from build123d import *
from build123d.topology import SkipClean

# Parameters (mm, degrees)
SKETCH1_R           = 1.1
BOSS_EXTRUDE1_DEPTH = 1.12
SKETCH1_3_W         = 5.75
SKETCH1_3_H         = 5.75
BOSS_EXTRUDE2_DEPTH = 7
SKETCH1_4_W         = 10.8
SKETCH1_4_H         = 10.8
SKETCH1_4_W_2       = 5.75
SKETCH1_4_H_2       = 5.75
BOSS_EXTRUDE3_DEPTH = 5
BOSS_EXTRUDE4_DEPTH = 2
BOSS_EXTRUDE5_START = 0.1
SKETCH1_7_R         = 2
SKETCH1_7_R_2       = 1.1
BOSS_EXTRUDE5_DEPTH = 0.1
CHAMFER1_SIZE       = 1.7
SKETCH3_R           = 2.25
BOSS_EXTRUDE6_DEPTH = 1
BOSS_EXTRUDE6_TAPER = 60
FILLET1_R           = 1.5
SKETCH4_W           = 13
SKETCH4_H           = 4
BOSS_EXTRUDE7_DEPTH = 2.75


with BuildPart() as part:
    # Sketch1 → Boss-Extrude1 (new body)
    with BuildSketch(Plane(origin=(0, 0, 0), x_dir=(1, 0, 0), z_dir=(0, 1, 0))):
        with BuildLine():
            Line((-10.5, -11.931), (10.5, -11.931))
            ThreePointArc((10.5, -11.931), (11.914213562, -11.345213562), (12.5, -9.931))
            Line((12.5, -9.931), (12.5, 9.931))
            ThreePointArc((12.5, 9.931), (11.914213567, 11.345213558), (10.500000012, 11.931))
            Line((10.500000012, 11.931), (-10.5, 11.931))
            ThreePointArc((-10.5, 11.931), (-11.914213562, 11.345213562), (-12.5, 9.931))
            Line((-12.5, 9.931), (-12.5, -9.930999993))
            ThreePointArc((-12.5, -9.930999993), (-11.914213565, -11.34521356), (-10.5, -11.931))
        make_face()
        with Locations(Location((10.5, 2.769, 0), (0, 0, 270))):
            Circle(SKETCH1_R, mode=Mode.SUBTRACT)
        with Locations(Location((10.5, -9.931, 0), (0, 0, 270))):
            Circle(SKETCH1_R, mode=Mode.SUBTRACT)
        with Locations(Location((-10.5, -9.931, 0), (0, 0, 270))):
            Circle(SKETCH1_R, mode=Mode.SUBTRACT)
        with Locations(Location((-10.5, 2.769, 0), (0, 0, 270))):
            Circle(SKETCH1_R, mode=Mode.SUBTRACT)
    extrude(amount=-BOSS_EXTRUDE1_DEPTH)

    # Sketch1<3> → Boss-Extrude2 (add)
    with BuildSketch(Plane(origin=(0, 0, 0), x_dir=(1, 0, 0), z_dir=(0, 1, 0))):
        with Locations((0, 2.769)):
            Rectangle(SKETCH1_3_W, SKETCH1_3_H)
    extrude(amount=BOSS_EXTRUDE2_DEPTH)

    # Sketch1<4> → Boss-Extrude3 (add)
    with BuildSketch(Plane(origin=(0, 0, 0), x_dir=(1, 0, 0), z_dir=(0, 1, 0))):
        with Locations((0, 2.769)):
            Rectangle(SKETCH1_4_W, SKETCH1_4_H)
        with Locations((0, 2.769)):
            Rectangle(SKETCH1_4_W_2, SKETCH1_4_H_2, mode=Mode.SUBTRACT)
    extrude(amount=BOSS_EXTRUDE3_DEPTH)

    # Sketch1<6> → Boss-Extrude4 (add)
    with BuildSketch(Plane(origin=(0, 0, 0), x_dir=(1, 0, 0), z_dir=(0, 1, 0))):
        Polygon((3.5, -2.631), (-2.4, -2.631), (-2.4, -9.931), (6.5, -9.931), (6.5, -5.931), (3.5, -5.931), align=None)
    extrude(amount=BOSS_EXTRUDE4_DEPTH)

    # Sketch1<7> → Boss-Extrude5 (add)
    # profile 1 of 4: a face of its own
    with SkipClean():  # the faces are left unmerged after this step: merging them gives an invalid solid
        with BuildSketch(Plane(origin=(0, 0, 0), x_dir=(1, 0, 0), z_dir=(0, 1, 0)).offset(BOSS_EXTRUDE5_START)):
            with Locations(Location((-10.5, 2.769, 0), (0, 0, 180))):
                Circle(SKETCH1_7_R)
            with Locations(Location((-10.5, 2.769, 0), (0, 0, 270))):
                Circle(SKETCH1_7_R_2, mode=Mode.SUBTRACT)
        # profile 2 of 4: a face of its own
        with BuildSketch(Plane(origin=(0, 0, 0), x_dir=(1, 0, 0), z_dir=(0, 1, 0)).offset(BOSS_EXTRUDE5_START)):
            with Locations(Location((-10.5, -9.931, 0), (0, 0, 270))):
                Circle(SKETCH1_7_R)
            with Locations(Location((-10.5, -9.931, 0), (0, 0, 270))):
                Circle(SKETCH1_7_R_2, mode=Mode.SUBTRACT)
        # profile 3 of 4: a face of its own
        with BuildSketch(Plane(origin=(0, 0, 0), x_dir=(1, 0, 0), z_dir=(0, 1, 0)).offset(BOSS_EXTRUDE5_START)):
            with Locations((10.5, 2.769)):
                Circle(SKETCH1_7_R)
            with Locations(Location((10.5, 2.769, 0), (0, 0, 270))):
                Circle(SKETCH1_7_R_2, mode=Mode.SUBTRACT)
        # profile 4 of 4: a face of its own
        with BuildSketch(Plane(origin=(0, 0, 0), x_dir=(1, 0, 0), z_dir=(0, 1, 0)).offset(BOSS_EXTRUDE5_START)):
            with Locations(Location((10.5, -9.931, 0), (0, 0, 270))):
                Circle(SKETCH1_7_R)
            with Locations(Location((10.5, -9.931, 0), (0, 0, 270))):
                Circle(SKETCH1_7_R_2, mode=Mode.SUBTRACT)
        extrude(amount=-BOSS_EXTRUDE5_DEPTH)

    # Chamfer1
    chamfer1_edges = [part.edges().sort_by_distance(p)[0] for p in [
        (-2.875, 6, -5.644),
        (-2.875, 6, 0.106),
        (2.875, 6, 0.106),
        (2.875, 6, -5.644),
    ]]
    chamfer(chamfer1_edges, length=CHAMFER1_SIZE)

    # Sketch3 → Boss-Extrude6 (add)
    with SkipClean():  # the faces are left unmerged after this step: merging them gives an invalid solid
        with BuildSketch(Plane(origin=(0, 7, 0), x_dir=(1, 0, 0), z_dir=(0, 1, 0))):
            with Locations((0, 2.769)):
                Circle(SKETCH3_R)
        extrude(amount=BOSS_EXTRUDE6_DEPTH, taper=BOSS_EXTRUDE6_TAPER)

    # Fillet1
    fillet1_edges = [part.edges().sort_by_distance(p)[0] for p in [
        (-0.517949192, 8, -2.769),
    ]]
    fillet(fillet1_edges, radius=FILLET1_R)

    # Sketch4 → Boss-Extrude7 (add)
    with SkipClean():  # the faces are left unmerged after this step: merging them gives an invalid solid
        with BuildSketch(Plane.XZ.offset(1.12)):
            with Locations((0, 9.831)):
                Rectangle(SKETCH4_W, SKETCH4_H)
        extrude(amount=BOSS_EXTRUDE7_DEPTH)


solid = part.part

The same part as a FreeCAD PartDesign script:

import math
import FreeCAD as App
import Part
import Sketcher


def edges_at(feature, points):
    """Names of the edges that pass closest to the given points."""
    edges = feature.Shape.Edges
    near = lambda p: min(range(len(edges)), key=lambda i: edges[i].distToShape(Part.Vertex(*p))[0])
    return sorted({f"Edge{near(p) + 1}" for p in points})

doc = App.newDocument("Part")
body = doc.addObject("PartDesign::Body", "Body")

# Sketch on XZ plane
sketch1 = doc.addObject("Sketcher::SketchObject", "Sketch")
body.addObject(sketch1)
sketch1.AttachmentSupport = (doc.XZ_Plane, [""])
sketch1.MapMode = "FlatFace"
sketch1.addGeometry(Part.LineSegment(App.Vector(-10.5, 11.9, 0), App.Vector(10.5, 11.9, 0)), False)
sketch1.addGeometry(Part.ArcOfCircle(Part.Circle(App.Vector(10.5, 9.9, 0), App.Vector(0, 0, 1), 2), math.radians(0), math.radians(90)), False)
sketch1.addGeometry(Part.LineSegment(App.Vector(12.5, 9.9, 0), App.Vector(12.5, -9.9, 0)), False)
sketch1.addGeometry(Part.ArcOfCircle(Part.Circle(App.Vector(10.5, -9.9, 0), App.Vector(0, 0, 1), 2), math.radians(-90), math.radians(0)), False)
sketch1.addGeometry(Part.LineSegment(App.Vector(10.5, -11.9, 0), App.Vector(-10.5, -11.9, 0)), False)
sketch1.addGeometry(Part.ArcOfCircle(Part.Circle(App.Vector(-10.5, -9.9, 0), App.Vector(0, 0, 1), 2), math.radians(-180), math.radians(-90)), False)
sketch1.addGeometry(Part.LineSegment(App.Vector(-12.5, -9.9, 0), App.Vector(-12.5, 9.9, 0)), False)
sketch1.addGeometry(Part.ArcOfCircle(Part.Circle(App.Vector(-10.5, 9.9, 0), App.Vector(0, 0, 1), 2), math.radians(90), math.radians(180)), False)
sketch1.addGeometry(Part.Circle(App.Vector(-10.5, 9.9, 0), App.Vector(0, 0, 1), 1.1), False)
sketch1.addGeometry(Part.Circle(App.Vector(10.5, 9.9, 0), App.Vector(0, 0, 1), 1.1), False)
sketch1.addGeometry(Part.Circle(App.Vector(-10.5, -2.8, 0), App.Vector(0, 0, 1), 1.1), False)
sketch1.addGeometry(Part.Circle(App.Vector(10.5, -2.8, 0), App.Vector(0, 0, 1), 1.1), False)
sketch1.addConstraint(Sketcher.Constraint("Tangent", 0, 2, 1, 2))
sketch1.addConstraint(Sketcher.Constraint("Tangent", 1, 1, 2, 1))
sketch1.addConstraint(Sketcher.Constraint("Tangent", 2, 2, 3, 2))
sketch1.addConstraint(Sketcher.Constraint("Tangent", 3, 1, 4, 1))
sketch1.addConstraint(Sketcher.Constraint("Tangent", 4, 2, 5, 2))
sketch1.addConstraint(Sketcher.Constraint("Tangent", 5, 1, 6, 1))
sketch1.addConstraint(Sketcher.Constraint("Tangent", 6, 2, 7, 2))
sketch1.addConstraint(Sketcher.Constraint("Tangent", 7, 1, 0, 1))
sketch1.addConstraint(Sketcher.Constraint("Horizontal", 0))
sketch1.addConstraint(Sketcher.Constraint("Vertical", 2))
sketch1.addConstraint(Sketcher.Constraint("Horizontal", 4))
sketch1.addConstraint(Sketcher.Constraint("Vertical", 6))
sketch1.addConstraint(Sketcher.Constraint("Coincident", 8, 3, 7, 3))
sketch1.addConstraint(Sketcher.Constraint("Coincident", 9, 3, 1, 3))
sketch1.addConstraint(Sketcher.Constraint("Equal", 1, 3))
sketch1.addConstraint(Sketcher.Constraint("Equal", 3, 5))
sketch1.addConstraint(Sketcher.Constraint("Equal", 5, 7))
sketch1.addConstraint(Sketcher.Constraint("Equal", 8, 9))
sketch1.addConstraint(Sketcher.Constraint("Equal", 9, 10))
sketch1.addConstraint(Sketcher.Constraint("Equal", 10, 11))
sketch1.addConstraint(Sketcher.Constraint("Symmetric", 1, 3, 5, 3, -1, 1))
sketch1.addConstraint(Sketcher.Constraint("Symmetric", 10, 3, 11, 3, -2))
sketch1.addConstraint(Sketcher.Constraint("Vertical", 8, 3, 10, 3))
sketch1.addConstraint(Sketcher.Constraint("Radius", 1, 2.0))
sketch1.addConstraint(Sketcher.Constraint("Diameter", 8, 2.2))
sketch1.addConstraint(Sketcher.Constraint("DistanceX", 0, 1, 0, 2, 21.0))
sketch1.addConstraint(Sketcher.Constraint("DistanceY", 10, 3, 7, 3, 12.7))
sketch1.addConstraint(Sketcher.Constraint("DistanceY", 2, 2, 2, 1, 19.862))
pad1 = doc.addObject("PartDesign::Pad", "Pad")
body.addObject(pad1)
pad1.Profile = sketch1
pad1.Length = 1.12

# Sketch on XZ plane
sketch2 = doc.addObject("Sketcher::SketchObject", "Sketch001")
body.addObject(sketch2)
sketch2.AttachmentSupport = (doc.XZ_Plane, [""])
sketch2.MapMode = "FlatFace"
sketch2.addGeometry(Part.LineSegment(App.Vector(-3, -6, 0), App.Vector(-3, 0, 0)), False)
sketch2.addGeometry(Part.LineSegment(App.Vector(-3, 0, 0), App.Vector(3, 0, 0)), False)
sketch2.addGeometry(Part.LineSegment(App.Vector(3, 0, 0), App.Vector(3, -6, 0)), False)
sketch2.addGeometry(Part.LineSegment(App.Vector(3, -6, 0), App.Vector(-3, -6, 0)), False)
sketch2.addConstraint(Sketcher.Constraint("Coincident", 0, 2, 1, 1))
sketch2.addConstraint(Sketcher.Constraint("Coincident", 1, 2, 2, 1))
sketch2.addConstraint(Sketcher.Constraint("Coincident", 2, 2, 3, 1))
sketch2.addConstraint(Sketcher.Constraint("Coincident", 3, 2, 0, 1))
sketch2.addConstraint(Sketcher.Constraint("Vertical", 0))
sketch2.addConstraint(Sketcher.Constraint("Horizontal", 1))
sketch2.addConstraint(Sketcher.Constraint("Vertical", 2))
sketch2.addConstraint(Sketcher.Constraint("Horizontal", 3))
sketch2.addConstraint(Sketcher.Constraint("Equal", 3, 0))
sketch2.addConstraint(Sketcher.Constraint("DistanceX", 1, 1, 1, 2, 5.75))
sketch2.addConstraint(Sketcher.Constraint("DistanceX", 0, 2, -1, 1, 2.875))
sketch2.addConstraint(Sketcher.Constraint("DistanceY", -1, 1, 0, 2, 0.106))
pad2 = doc.addObject("PartDesign::Pad", "Pad001")
body.addObject(pad2)
pad2.Profile = sketch2
pad2.Length = 7
pad2.Reversed = True

# Sketch on XZ plane
sketch3 = doc.addObject("Sketcher::SketchObject", "Sketch002")
body.addObject(sketch3)
sketch3.AttachmentSupport = (doc.XZ_Plane, [""])
sketch3.MapMode = "FlatFace"
sketch3.addGeometry(Part.LineSegment(App.Vector(-5, -8, 0), App.Vector(-5, 3, 0)), False)
sketch3.addGeometry(Part.LineSegment(App.Vector(-5, 3, 0), App.Vector(5, 3, 0)), False)
sketch3.addGeometry(Part.LineSegment(App.Vector(5, 3, 0), App.Vector(5, -8, 0)), False)
sketch3.addGeometry(Part.LineSegment(App.Vector(5, -8, 0), App.Vector(-5, -8, 0)), False)
sketch3.addGeometry(Part.LineSegment(App.Vector(3, 0, 0), App.Vector(-3, 0, 0)), False)
sketch3.addGeometry(Part.LineSegment(App.Vector(-3, 0, 0), App.Vector(-3, -6, 0)), False)
sketch3.addGeometry(Part.LineSegment(App.Vector(-3, -6, 0), App.Vector(3, -6, 0)), False)
sketch3.addGeometry(Part.LineSegment(App.Vector(3, -6, 0), App.Vector(3, 0, 0)), False)
sketch3.addConstraint(Sketcher.Constraint("Coincident", 0, 2, 1, 1))
sketch3.addConstraint(Sketcher.Constraint("Coincident", 1, 2, 2, 1))
sketch3.addConstraint(Sketcher.Constraint("Coincident", 2, 2, 3, 1))
sketch3.addConstraint(Sketcher.Constraint("Coincident", 3, 2, 0, 1))
sketch3.addConstraint(Sketcher.Constraint("Coincident", 4, 2, 5, 1))
sketch3.addConstraint(Sketcher.Constraint("Coincident", 5, 2, 6, 1))
sketch3.addConstraint(Sketcher.Constraint("Coincident", 6, 2, 7, 1))
sketch3.addConstraint(Sketcher.Constraint("Coincident", 7, 2, 4, 1))
sketch3.addConstraint(Sketcher.Constraint("Vertical", 0))
sketch3.addConstraint(Sketcher.Constraint("Horizontal", 1))
sketch3.addConstraint(Sketcher.Constraint("Vertical", 2))
sketch3.addConstraint(Sketcher.Constraint("Horizontal", 3))
sketch3.addConstraint(Sketcher.Constraint("Horizontal", 4))
sketch3.addConstraint(Sketcher.Constraint("Vertical", 5))
sketch3.addConstraint(Sketcher.Constraint("Horizontal", 6))
sketch3.addConstraint(Sketcher.Constraint("Vertical", 7))
sketch3.addConstraint(Sketcher.Constraint("Equal", 3, 0))
sketch3.addConstraint(Sketcher.Constraint("Equal", 6, 5))
sketch3.addConstraint(Sketcher.Constraint("DistanceX", 1, 1, 1, 2, 10.8))
sketch3.addConstraint(Sketcher.Constraint("DistanceX", 4, 2, 4, 1, 5.75))
sketch3.addConstraint(Sketcher.Constraint("DistanceX", 0, 2, -1, 1, 5.4))
sketch3.addConstraint(Sketcher.Constraint("DistanceY", -1, 1, 0, 2, 2.631))
sketch3.addConstraint(Sketcher.Constraint("DistanceX", 4, 2, -1, 1, 2.875))
sketch3.addConstraint(Sketcher.Constraint("DistanceY", -1, 1, 4, 2, 0.106))
pad3 = doc.addObject("PartDesign::Pad", "Pad002")
body.addObject(pad3)
pad3.Profile = sketch3
pad3.Length = 5
pad3.Reversed = True

# Sketch on XZ plane
sketch4 = doc.addObject("Sketcher::SketchObject", "Sketch003")
body.addObject(sketch4)
sketch4.AttachmentSupport = (doc.XZ_Plane, [""])
sketch4.MapMode = "FlatFace"
sketch4.addGeometry(Part.LineSegment(App.Vector(3.5, 2.6, 0), App.Vector(-2.4, 2.6, 0)), False)
sketch4.addGeometry(Part.LineSegment(App.Vector(-2.4, 2.6, 0), App.Vector(-2.4, 9.9, 0)), False)
sketch4.addGeometry(Part.LineSegment(App.Vector(-2.4, 9.9, 0), App.Vector(6.5, 9.9, 0)), False)
sketch4.addGeometry(Part.LineSegment(App.Vector(6.5, 9.9, 0), App.Vector(6.5, 5.9, 0)), False)
sketch4.addGeometry(Part.LineSegment(App.Vector(6.5, 5.9, 0), App.Vector(3.5, 5.9, 0)), False)
sketch4.addGeometry(Part.LineSegment(App.Vector(3.5, 5.9, 0), App.Vector(3.5, 2.6, 0)), False)
sketch4.addConstraint(Sketcher.Constraint("Coincident", 0, 2, 1, 1))
sketch4.addConstraint(Sketcher.Constraint("Coincident", 1, 2, 2, 1))
sketch4.addConstraint(Sketcher.Constraint("Coincident", 2, 2, 3, 1))
sketch4.addConstraint(Sketcher.Constraint("Coincident", 3, 2, 4, 1))
sketch4.addConstraint(Sketcher.Constraint("Coincident", 4, 2, 5, 1))
sketch4.addConstraint(Sketcher.Constraint("Coincident", 5, 2, 0, 1))
sketch4.addConstraint(Sketcher.Constraint("Horizontal", 0))
sketch4.addConstraint(Sketcher.Constraint("Vertical", 1))
sketch4.addConstraint(Sketcher.Constraint("Horizontal", 2))
sketch4.addConstraint(Sketcher.Constraint("Vertical", 3))
sketch4.addConstraint(Sketcher.Constraint("Horizontal", 4))
sketch4.addConstraint(Sketcher.Constraint("Vertical", 5))
sketch4.addConstraint(Sketcher.Constraint("DistanceX", 4, 2, 4, 1, 3.0))
sketch4.addConstraint(Sketcher.Constraint("DistanceY", 3, 2, 3, 1, 4.0))
sketch4.addConstraint(Sketcher.Constraint("DistanceX", 0, 2, 0, 1, 5.9))
sketch4.addConstraint(Sketcher.Constraint("DistanceY", 1, 1, 1, 2, 7.3))
sketch4.addConstraint(Sketcher.Constraint("DistanceX", 0, 2, -1, 1, 2.4))
sketch4.addConstraint(Sketcher.Constraint("DistanceY", -1, 1, 0, 2, 2.631))
pad4 = doc.addObject("PartDesign::Pad", "Pad003")
body.addObject(pad4)
pad4.Profile = sketch4
pad4.Length = 2
pad4.Reversed = True

# Sketch on XZ plane
sketch5 = doc.addObject("Sketcher::SketchObject", "Sketch004")
body.addObject(sketch5)
sketch5.AttachmentSupport = (doc.XZ_Plane, [""])
sketch5.MapMode = "FlatFace"
sketch5.AttachmentOffset = App.Placement(App.Vector(0, 0, -0.1), App.Rotation())
sketch5.addGeometry(Part.Circle(App.Vector(-10.5, -2.8, 0), App.Vector(0, 0, 1), 2), False)
sketch5.addGeometry(Part.Circle(App.Vector(-10.5, -2.8, 0), App.Vector(0, 0, 1), 1.1), False)
sketch5.addGeometry(Part.Circle(App.Vector(-10.5, 9.9, 0), App.Vector(0, 0, 1), 2), False)
sketch5.addGeometry(Part.Circle(App.Vector(-10.5, 9.9, 0), App.Vector(0, 0, 1), 1.1), False)
sketch5.addGeometry(Part.Circle(App.Vector(10.5, -2.8, 0), App.Vector(0, 0, 1), 2), False)
sketch5.addGeometry(Part.Circle(App.Vector(10.5, -2.8, 0), App.Vector(0, 0, 1), 1.1), False)
sketch5.addGeometry(Part.Circle(App.Vector(10.5, 9.9, 0), App.Vector(0, 0, 1), 2), False)
sketch5.addGeometry(Part.Circle(App.Vector(10.5, 9.9, 0), App.Vector(0, 0, 1), 1.1), False)
sketch5.addConstraint(Sketcher.Constraint("Coincident", 1, 3, 0, 3))
sketch5.addConstraint(Sketcher.Constraint("Coincident", 3, 3, 2, 3))
sketch5.addConstraint(Sketcher.Constraint("Coincident", 5, 3, 4, 3))
sketch5.addConstraint(Sketcher.Constraint("Coincident", 7, 3, 6, 3))
sketch5.addConstraint(Sketcher.Constraint("Equal", 0, 2))
sketch5.addConstraint(Sketcher.Constraint("Equal", 1, 3))
sketch5.addConstraint(Sketcher.Constraint("Equal", 2, 4))
sketch5.addConstraint(Sketcher.Constraint("Equal", 3, 5))
sketch5.addConstraint(Sketcher.Constraint("Equal", 4, 6))
sketch5.addConstraint(Sketcher.Constraint("Equal", 5, 7))
sketch5.addConstraint(Sketcher.Constraint("Symmetric", 0, 3, 4, 3, -2))
sketch5.addConstraint(Sketcher.Constraint("Symmetric", 2, 3, 6, 3, -2))
sketch5.addConstraint(Sketcher.Constraint("Vertical", 1, 3, 2, 3))
sketch5.addConstraint(Sketcher.Constraint("Diameter", 0, 4.0))
sketch5.addConstraint(Sketcher.Constraint("Diameter", 1, 2.2))
sketch5.addConstraint(Sketcher.Constraint("DistanceX", 0, 3, 4, 3, 21.0))
sketch5.addConstraint(Sketcher.Constraint("DistanceY", 0, 3, 2, 3, 12.7))
sketch5.addConstraint(Sketcher.Constraint("DistanceY", 0, 3, -1, 1, 2.769))
pad5 = doc.addObject("PartDesign::Pad", "Pad004")
body.addObject(pad5)
pad5.Profile = sketch5
pad5.Length = 0.1
doc.recompute()

chamfer = doc.addObject("PartDesign::Chamfer", "Chamfer")
body.addObject(chamfer)
chamfer.Base = (pad5, edges_at(pad5, [
    (-2.875, 6, -5.644),
    (-2.875, 6, 0.106),
    (2.875, 6, 0.106),
    (2.875, 6, -5.644),
]))
chamfer.Size = 1.7

# Sketch on XZ plane
sketch6 = doc.addObject("Sketcher::SketchObject", "Sketch005")
body.addObject(sketch6)
sketch6.AttachmentSupport = (doc.XZ_Plane, [""])
sketch6.MapMode = "FlatFace"
sketch6.AttachmentOffset = App.Placement(App.Vector(0, 0, -7), App.Rotation())
sketch6.addGeometry(Part.Circle(App.Vector(0, -2.8, 0), App.Vector(0, 0, 1), 2.2), False)
sketch6.addConstraint(Sketcher.Constraint("PointOnObject", 0, 3, -2))
sketch6.addConstraint(Sketcher.Constraint("Diameter", 0, 4.5))
sketch6.addConstraint(Sketcher.Constraint("DistanceY", 0, 3, -1, 1, 2.769))
pad6 = doc.addObject("PartDesign::Pad", "Pad005")
body.addObject(pad6)
pad6.Profile = sketch6
pad6.Length = 1
pad6.Reversed = True
pad6.TaperAngle = -60
doc.recompute()

fillet = doc.addObject("PartDesign::Fillet", "Fillet")
body.addObject(fillet)
fillet.Base = (pad6, edges_at(pad6, [(-0.518, 8, -2.769)]))
fillet.Radius = 1.5

# Sketch on XZ plane
sketch7 = doc.addObject("Sketcher::SketchObject", "Sketch006")
body.addObject(sketch7)
sketch7.AttachmentSupport = (doc.XZ_Plane, [""])
sketch7.MapMode = "FlatFace"
sketch7.AttachmentOffset = App.Placement(App.Vector(0, 0, 1.12), App.Rotation())
sketch7.addGeometry(Part.LineSegment(App.Vector(-6.5, 11.8, 0), App.Vector(-6.5, 7.8, 0)), False)
sketch7.addGeometry(Part.LineSegment(App.Vector(-6.5, 7.8, 0), App.Vector(6.5, 7.8, 0)), False)
sketch7.addGeometry(Part.LineSegment(App.Vector(6.5, 7.8, 0), App.Vector(6.5, 11.8, 0)), False)
sketch7.addGeometry(Part.LineSegment(App.Vector(6.5, 11.8, 0), App.Vector(-6.5, 11.8, 0)), False)
sketch7.addConstraint(Sketcher.Constraint("Coincident", 0, 2, 1, 1))
sketch7.addConstraint(Sketcher.Constraint("Coincident", 1, 2, 2, 1))
sketch7.addConstraint(Sketcher.Constraint("Coincident", 2, 2, 3, 1))
sketch7.addConstraint(Sketcher.Constraint("Coincident", 3, 2, 0, 1))
sketch7.addConstraint(Sketcher.Constraint("Vertical", 0))
sketch7.addConstraint(Sketcher.Constraint("Horizontal", 1))
sketch7.addConstraint(Sketcher.Constraint("Vertical", 2))
sketch7.addConstraint(Sketcher.Constraint("Horizontal", 3))
sketch7.addConstraint(Sketcher.Constraint("DistanceX", 1, 1, 1, 2, 13.0))
sketch7.addConstraint(Sketcher.Constraint("DistanceY", 0, 2, 0, 1, 4.0))
sketch7.addConstraint(Sketcher.Constraint("DistanceX", 0, 2, -1, 1, 6.5))
sketch7.addConstraint(Sketcher.Constraint("DistanceY", -1, 1, 0, 2, 7.831))
pad7 = doc.addObject("PartDesign::Pad", "Pad006")
body.addObject(pad7)
pad7.Profile = sketch7
pad7.Length = 2.75

doc.recompute()
